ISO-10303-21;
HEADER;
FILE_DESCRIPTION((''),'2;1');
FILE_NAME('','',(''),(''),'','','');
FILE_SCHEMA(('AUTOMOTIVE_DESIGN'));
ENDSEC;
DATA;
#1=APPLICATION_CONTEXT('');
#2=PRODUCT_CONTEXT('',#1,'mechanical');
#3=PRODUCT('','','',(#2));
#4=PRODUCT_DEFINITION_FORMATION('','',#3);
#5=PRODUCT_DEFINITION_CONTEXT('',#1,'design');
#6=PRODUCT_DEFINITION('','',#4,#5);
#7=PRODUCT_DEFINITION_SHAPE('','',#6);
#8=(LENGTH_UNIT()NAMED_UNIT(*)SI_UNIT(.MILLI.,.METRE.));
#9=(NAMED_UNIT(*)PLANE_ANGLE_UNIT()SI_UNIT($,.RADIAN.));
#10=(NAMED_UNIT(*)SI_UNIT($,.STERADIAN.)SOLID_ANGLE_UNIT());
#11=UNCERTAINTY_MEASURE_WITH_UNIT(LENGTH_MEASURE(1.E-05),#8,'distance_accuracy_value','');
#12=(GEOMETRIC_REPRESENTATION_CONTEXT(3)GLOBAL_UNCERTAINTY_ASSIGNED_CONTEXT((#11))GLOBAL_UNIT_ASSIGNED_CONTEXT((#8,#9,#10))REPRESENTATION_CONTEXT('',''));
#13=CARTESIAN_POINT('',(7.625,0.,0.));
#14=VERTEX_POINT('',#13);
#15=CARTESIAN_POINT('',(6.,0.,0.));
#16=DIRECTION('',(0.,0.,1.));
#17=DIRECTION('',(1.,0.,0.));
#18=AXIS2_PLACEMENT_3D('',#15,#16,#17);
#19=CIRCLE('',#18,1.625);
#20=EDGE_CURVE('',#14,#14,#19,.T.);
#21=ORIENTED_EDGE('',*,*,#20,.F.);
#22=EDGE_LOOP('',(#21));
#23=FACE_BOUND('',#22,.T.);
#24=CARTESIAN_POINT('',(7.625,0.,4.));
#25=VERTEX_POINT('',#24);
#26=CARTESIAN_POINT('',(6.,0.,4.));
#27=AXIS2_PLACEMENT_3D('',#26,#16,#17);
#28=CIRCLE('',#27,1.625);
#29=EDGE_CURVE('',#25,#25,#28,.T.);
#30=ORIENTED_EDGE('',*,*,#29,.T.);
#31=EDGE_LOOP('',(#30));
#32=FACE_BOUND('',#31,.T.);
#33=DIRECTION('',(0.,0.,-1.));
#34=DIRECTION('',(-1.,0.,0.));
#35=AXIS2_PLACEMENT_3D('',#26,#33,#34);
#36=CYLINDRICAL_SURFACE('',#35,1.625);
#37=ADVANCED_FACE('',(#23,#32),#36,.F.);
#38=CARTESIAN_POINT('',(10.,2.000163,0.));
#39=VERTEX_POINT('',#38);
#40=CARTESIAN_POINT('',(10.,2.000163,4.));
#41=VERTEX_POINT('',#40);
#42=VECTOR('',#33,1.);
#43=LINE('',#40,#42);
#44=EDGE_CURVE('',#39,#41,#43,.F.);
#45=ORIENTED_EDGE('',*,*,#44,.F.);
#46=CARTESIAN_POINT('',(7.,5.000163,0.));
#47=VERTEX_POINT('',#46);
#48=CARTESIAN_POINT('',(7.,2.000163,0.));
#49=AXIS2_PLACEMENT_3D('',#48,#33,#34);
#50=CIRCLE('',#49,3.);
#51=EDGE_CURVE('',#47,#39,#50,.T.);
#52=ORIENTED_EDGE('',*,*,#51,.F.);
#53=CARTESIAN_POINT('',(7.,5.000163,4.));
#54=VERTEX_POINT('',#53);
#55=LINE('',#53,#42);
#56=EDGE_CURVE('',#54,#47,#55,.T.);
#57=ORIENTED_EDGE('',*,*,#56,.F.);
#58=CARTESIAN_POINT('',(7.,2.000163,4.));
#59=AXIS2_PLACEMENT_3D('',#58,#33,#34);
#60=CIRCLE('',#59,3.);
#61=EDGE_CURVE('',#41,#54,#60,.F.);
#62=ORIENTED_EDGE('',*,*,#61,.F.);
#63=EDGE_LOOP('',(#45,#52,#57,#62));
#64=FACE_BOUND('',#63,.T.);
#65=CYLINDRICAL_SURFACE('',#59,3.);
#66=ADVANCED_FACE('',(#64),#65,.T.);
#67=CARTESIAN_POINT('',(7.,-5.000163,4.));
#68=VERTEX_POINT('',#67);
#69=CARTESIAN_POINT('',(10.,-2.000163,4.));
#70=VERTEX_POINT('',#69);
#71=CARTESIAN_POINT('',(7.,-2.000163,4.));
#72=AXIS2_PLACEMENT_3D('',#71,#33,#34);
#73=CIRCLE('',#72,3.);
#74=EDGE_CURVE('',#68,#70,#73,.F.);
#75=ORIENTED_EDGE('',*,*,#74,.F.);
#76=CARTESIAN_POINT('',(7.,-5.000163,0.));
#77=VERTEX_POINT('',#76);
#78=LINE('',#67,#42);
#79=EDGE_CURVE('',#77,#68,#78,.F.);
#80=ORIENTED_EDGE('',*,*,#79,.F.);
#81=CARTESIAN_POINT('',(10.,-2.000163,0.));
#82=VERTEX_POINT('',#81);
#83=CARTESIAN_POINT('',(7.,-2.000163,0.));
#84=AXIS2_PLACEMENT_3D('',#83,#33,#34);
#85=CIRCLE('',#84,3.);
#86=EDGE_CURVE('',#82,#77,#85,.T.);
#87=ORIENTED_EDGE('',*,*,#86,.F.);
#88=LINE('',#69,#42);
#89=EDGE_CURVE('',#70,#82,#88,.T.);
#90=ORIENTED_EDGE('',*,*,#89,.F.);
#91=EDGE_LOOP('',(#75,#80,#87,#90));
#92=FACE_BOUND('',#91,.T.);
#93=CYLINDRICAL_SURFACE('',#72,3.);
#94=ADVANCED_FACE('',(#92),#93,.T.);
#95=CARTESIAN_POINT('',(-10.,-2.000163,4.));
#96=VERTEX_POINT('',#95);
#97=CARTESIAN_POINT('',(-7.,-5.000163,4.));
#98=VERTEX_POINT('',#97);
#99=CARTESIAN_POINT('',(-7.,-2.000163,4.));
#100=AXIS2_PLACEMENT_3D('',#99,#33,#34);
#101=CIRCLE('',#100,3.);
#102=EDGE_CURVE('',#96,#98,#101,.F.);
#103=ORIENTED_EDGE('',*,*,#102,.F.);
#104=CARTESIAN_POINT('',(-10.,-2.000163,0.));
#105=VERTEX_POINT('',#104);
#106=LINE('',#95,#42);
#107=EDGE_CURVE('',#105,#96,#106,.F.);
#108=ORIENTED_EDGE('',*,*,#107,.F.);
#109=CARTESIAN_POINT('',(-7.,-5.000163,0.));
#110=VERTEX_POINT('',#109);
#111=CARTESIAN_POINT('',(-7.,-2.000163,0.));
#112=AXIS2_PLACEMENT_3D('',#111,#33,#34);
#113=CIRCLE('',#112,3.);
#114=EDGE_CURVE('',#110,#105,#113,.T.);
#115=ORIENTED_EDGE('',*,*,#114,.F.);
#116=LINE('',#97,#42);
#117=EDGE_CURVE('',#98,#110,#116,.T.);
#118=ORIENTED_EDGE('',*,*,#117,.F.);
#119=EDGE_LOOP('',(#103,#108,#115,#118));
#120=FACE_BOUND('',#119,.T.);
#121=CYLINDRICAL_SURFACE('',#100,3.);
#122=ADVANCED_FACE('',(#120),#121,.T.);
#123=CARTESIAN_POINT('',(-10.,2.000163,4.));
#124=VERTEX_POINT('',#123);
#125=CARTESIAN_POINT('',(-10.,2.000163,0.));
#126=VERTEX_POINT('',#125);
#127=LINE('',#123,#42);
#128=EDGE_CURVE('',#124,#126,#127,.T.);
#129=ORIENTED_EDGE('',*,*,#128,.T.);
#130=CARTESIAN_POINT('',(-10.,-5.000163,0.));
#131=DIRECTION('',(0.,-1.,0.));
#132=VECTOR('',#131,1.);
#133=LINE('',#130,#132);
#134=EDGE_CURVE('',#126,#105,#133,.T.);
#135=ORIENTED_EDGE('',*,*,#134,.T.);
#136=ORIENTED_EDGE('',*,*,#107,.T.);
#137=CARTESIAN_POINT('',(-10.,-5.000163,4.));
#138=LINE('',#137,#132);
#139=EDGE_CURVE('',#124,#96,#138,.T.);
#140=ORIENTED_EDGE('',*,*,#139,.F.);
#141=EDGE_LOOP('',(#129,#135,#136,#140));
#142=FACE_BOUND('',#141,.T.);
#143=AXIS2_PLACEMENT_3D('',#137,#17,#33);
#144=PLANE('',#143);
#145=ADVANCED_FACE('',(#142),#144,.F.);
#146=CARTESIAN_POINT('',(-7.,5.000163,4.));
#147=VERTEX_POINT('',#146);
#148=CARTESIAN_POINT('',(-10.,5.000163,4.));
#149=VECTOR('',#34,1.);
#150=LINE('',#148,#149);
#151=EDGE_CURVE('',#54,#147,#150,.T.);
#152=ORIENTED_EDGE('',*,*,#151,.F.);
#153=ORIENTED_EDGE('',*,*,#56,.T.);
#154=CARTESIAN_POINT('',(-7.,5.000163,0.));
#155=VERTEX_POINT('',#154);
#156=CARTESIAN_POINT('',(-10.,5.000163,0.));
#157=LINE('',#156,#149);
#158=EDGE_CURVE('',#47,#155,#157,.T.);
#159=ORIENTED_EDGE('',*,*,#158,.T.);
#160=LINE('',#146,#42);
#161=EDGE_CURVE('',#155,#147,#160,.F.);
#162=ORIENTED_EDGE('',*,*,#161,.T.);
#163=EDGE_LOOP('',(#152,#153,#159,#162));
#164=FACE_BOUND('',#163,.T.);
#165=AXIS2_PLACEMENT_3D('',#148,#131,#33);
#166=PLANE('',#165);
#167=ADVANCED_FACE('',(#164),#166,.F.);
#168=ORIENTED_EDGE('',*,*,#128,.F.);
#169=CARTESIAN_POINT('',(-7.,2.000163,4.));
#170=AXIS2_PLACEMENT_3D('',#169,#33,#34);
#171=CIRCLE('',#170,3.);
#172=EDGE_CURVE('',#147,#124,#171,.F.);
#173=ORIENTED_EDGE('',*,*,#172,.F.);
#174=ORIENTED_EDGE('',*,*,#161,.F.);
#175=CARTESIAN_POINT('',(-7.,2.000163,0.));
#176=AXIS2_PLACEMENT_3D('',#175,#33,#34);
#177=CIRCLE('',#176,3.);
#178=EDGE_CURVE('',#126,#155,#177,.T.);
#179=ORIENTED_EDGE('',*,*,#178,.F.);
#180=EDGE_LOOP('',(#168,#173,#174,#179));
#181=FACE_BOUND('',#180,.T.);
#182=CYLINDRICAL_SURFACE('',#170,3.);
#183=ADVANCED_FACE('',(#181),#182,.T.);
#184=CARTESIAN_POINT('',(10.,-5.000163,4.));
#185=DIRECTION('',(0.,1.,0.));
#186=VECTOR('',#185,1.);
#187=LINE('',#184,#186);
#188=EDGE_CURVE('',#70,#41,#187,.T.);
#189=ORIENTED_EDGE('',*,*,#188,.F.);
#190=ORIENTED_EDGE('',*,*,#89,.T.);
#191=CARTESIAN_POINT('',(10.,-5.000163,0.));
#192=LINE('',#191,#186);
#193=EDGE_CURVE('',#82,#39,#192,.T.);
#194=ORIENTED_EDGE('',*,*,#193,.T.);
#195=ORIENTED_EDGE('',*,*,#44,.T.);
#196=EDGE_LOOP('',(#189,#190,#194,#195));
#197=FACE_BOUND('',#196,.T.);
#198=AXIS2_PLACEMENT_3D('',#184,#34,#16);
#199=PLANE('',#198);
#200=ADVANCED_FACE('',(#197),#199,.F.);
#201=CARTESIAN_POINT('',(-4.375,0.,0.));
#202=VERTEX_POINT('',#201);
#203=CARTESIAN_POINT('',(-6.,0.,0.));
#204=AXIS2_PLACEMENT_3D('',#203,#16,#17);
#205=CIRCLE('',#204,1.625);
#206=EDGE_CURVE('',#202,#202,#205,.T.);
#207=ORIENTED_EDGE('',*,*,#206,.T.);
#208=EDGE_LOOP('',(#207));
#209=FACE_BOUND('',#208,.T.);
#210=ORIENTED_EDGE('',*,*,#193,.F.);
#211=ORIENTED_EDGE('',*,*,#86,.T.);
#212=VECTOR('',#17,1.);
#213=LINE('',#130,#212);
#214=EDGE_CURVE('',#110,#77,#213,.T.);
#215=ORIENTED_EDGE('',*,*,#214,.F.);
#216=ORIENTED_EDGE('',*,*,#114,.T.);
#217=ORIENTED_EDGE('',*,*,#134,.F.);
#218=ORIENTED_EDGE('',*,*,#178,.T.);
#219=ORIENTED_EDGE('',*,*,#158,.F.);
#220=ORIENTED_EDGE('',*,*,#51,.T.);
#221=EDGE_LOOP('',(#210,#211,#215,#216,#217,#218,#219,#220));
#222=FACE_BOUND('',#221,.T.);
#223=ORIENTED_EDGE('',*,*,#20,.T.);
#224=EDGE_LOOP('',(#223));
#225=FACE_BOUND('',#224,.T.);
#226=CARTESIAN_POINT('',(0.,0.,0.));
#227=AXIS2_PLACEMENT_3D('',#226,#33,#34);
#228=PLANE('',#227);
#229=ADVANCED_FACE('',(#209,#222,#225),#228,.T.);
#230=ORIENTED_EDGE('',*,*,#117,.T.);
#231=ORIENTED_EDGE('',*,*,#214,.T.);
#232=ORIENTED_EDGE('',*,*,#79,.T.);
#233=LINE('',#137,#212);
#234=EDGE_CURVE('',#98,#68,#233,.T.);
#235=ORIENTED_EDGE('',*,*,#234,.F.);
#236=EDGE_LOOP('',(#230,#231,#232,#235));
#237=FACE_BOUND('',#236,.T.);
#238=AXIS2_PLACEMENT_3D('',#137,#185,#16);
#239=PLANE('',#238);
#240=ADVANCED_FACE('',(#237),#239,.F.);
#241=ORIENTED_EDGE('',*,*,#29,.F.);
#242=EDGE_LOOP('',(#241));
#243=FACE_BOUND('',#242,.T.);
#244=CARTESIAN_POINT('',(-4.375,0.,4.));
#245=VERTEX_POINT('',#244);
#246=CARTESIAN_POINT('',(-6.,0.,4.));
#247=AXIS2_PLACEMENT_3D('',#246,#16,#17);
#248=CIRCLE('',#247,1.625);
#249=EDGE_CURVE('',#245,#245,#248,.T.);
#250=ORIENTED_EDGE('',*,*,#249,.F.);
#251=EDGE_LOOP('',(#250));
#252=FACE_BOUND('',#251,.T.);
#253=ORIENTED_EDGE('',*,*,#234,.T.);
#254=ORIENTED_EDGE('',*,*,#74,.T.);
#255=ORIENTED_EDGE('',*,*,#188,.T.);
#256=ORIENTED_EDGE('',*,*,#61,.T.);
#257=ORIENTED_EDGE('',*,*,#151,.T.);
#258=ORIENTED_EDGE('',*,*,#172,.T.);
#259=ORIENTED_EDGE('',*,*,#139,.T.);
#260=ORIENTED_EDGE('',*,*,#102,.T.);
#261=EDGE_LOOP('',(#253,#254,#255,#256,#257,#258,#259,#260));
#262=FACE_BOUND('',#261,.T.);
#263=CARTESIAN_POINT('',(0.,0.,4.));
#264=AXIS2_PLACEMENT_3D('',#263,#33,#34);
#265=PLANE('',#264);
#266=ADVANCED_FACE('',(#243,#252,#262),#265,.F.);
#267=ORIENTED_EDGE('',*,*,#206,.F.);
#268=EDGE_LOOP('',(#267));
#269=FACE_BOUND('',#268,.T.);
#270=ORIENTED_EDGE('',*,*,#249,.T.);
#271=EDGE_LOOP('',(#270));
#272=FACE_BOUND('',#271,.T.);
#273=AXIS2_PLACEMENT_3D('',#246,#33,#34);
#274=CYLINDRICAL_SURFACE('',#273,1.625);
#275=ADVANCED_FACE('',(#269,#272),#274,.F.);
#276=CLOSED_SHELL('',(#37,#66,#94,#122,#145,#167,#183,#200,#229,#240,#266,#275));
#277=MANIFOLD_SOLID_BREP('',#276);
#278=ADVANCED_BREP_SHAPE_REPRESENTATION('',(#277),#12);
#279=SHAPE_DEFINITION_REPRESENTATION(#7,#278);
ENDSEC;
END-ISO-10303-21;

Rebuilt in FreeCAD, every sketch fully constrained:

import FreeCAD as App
import Part
import Sketcher
Q = App.Units.Quantity


def edges_at(feature, points):
    """Names of the edges that pass closest to the given points."""
    edges = feature.Shape.Edges
    near = lambda p: min(range(len(edges)), key=lambda i: edges[i].distToShape(Part.Vertex(*p))[0])
    return sorted({f"Edge{near(p) + 1}" for p in points})


def add_polygon(sketch, points):
    """Adds a closed chain of lines whose ends are joined by coincident constraints."""
    first, n = sketch.GeometryCount, len(points)
    for a, b in zip(points, points[1:] + points[:1]):
        sketch.addGeometry(Part.LineSegment(App.Vector(*a, 0), App.Vector(*b, 0)), False)
    for i in range(n):
        sketch.addConstraint(Sketcher.Constraint("Coincident", first + i, 2, first + (i + 1) % n, 1))

doc = App.newDocument("Part")
body = doc.addObject("PartDesign::Body", "Body")

# Sketch on XY plane
sketch1 = doc.addObject("Sketcher::SketchObject", "Sketch")
body.addObject(sketch1)
sketch1.AttachmentSupport = (doc.XY_Plane, [""])
sketch1.MapMode = "FlatFace"
add_polygon(sketch1, [(-10, 5), (-10, -5), (10, -5), (10, 5)])  # lines 0-3
sketch1.addGeometry(Part.Circle(App.Vector(-6, 0, 0), App.Vector(0, 0, 1), 1.6), False)  # 4
sketch1.addGeometry(Part.Circle(App.Vector(6, 0, 0), App.Vector(0, 0, 1), 1.6), False)  # 5
sketch1.addConstraint([
    Sketcher.Constraint("Vertical", 0),
    Sketcher.Constraint("Horizontal", 1),
    Sketcher.Constraint("Vertical", 2),
    Sketcher.Constraint("Horizontal", 3),
    Sketcher.Constraint("Equal", 4, 5),
    Sketcher.Constraint("Symmetric", 4, 3, 5, 3, -1, 1),
    Sketcher.Constraint("Symmetric", 0, 2, 2, 2, -1, 1),
    Sketcher.Constraint("PointOnObject", 4, 3, -1),
    Sketcher.Constraint("Diameter", 4, Q("3.25 mm")),
    Sketcher.Constraint("DistanceX", 1, 1, 1, 2, Q("20 mm")),
    Sketcher.Constraint("DistanceX", 4, 3, -1, 1, Q("6 mm")),
    Sketcher.Constraint("DistanceY", 0, 2, 0, 1, Q("10.000327 mm")),
])
pad1 = doc.addObject("PartDesign::Pad", "Pad")
body.addObject(pad1)
pad1.Profile = sketch1
pad1.Length = 4
doc.recompute()

fillet = doc.addObject("PartDesign::Fillet", "Fillet")
body.addObject(fillet)
fillet.Base = (pad1, edges_at(pad1, [
    (10, -5, 2),
    (-10, -5, 2),
    (-10, 5, 2),
    (10, 5, 2),
]))
fillet.Radius = 3

doc.recompute()
